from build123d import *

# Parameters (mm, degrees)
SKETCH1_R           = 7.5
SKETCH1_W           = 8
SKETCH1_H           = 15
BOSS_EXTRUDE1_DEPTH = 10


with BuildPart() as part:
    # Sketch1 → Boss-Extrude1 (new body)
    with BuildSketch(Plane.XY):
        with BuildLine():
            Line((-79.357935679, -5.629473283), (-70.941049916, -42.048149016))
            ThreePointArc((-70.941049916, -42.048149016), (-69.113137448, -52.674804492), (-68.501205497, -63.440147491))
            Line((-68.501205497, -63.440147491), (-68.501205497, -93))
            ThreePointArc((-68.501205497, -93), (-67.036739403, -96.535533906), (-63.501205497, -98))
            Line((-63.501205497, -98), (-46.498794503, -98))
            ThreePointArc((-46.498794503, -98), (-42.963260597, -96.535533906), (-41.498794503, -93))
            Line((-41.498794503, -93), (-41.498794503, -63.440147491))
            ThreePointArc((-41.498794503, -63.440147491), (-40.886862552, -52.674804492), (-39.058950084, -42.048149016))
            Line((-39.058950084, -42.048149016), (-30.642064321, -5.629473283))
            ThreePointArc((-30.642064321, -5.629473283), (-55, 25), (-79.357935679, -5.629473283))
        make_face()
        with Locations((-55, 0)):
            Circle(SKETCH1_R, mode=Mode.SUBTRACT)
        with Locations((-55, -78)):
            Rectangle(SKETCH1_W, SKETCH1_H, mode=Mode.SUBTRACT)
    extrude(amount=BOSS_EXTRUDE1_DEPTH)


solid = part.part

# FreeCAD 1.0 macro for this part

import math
import FreeCAD as App
import Part
import Sketcher

V = App.Vector
Q = App.Units.Quantity


def add_polygon(sketch, points):
    """Adds a closed chain of lines whose ends are joined by coincident constraints."""
    first, n = sketch.GeometryCount, len(points)
    for a, b in zip(points, points[1:] + points[:1]):
        sketch.addGeometry(Part.LineSegment(App.Vector(*a, 0), App.Vector(*b, 0)), False)
    for i in range(n):
        sketch.addConstraint(Sketcher.Constraint("Coincident", first + i, 2, first + (i + 1) % n, 1))

doc = App.newDocument("Part")
body = doc.addObject("PartDesign::Body", "Body")

sketch1 = doc.addObject("Sketcher::SketchObject", "Sketch")
body.addObject(sketch1)
sketch1.AttachmentSupport = (doc.XY_Plane, [""])
sketch1.MapMode = "FlatFace"
sketch1.addGeometry(Part.LineSegment(V(-79, -6, 0), V(-71, -42, 0)), False)
sketch1.addGeometry(Part.ArcOfCircle(Part.Circle(V(-164, -63, 0), V(0, 0, 1), 95), math.radians(0), math.radians(13.01)), False)
sketch1.addGeometry(Part.LineSegment(V(-69, -63, 0), V(-69, -93, 0)), False)
sketch1.addGeometry(Part.ArcOfCircle(Part.Circle(V(-64, -93, 0), V(0, 0, 1), 5), math.radians(180), math.radians(270)), False)
sketch1.addGeometry(Part.LineSegment(V(-64, -98, 0), V(-46, -98, 0)), False)
sketch1.addGeometry(Part.ArcOfCircle(Part.Circle(V(-46, -93, 0), V(0, 0, 1), 5), math.radians(-90), math.radians(0)), False)
sketch1.addGeometry(Part.LineSegment(V(-41, -93, 0), V(-41, -63, 0)), False)
sketch1.addGeometry(Part.ArcOfCircle(Part.Circle(V(54, -63, 0), V(0, 0, 1), 95), math.radians(166.99), math.radians(180)), False)
sketch1.addGeometry(Part.LineSegment(V(-39, -42, 0), V(-31, -6, 0)), False)
sketch1.addGeometry(Part.ArcOfCircle(Part.Circle(V(-55, 0, 0), V(0, 0, 1), 25), math.radians(-13), math.radians(193)), False)
add_polygon(sketch1, [(-51, -86), (-59, -86), (-59, -70), (-51, -70)])
sketch1.addGeometry(Part.Circle(V(-55, 0, 0), V(0, 0, 1), 8), False)
sketch1.addConstraint([
    Sketcher.Constraint("Tangent", 0, 2, 1, 2),
    Sketcher.Constraint("Tangent", 1, 1, 2, 1),
    Sketcher.Constraint("Tangent", 2, 2, 3, 1),
    Sketcher.Constraint("Tangent", 3, 2, 4, 1),
    Sketcher.Constraint("Tangent", 4, 2, 5, 1),
    Sketcher.Constraint("Tangent", 5, 2, 6, 1),
    Sketcher.Constraint("Tangent", 6, 2, 7, 2),
    Sketcher.Constraint("Tangent", 7, 1, 8, 1),
    Sketcher.Constraint("Tangent", 8, 2, 9, 1),
    Sketcher.Constraint("Tangent", 9, 2, 0, 1),
    Sketcher.Constraint("Vertical", 2),
    Sketcher.Constraint("Horizontal", 4),
    Sketcher.Constraint("Vertical", 6),
    Sketcher.Constraint("Horizontal", 10),
    Sketcher.Constraint("Vertical", 11),
    Sketcher.Constraint("Horizontal", 12),
    Sketcher.Constraint("Vertical", 13),
    Sketcher.Constraint("Coincident", 14, 3, 9, 3),
    Sketcher.Constraint("Equal", 3, 5),
    Sketcher.Constraint("Equal", 1, 7),
    Sketcher.Constraint("PointOnObject", 9, 3, -1),
    Sketcher.Constraint("Horizontal", 1, 3, 7, 3),
    Sketcher.Constraint("Horizontal", 0, 2, 7, 1),
    Sketcher.Constraint("Diameter", 14, Q("15 mm")),
    Sketcher.Constraint("Radius", 1, Q("95 mm")),
    Sketcher.Constraint("Radius", 3, Q("5 mm")),
    Sketcher.Constraint("Radius", 9, Q("25 mm")),
    Sketcher.Constraint("DistanceX", 10, 2, 10, 1, Q("8 mm")),
    Sketcher.Constraint("DistanceY", 11, 1, 11, 2, Q("15 mm")),
    Sketcher.Constraint("DistanceY", 3, 3, -1, 1, Q("93 mm")),
    Sketcher.Constraint("DistanceX", 9, 3, -1, 1, Q("55 mm")),
    Sketcher.Constraint("DistanceX", 10, 2, -1, 1, Q("59 mm")),
    Sketcher.Constraint("DistanceY", 10, 2, -1, 1, Q("85.5 mm")),
    Sketcher.Constraint("DistanceY", 1, 3, 0, 2, Q("21.391998 mm")),
    Sketcher.Constraint("DistanceX", 4, 1, 4, 2, Q("17.002411 mm")),
])
pad1 = doc.addObject("PartDesign::Pad", "Pad")
body.addObject(pad1)
pad1.Profile = sketch1
pad1.Length = 10

doc.recompute()
